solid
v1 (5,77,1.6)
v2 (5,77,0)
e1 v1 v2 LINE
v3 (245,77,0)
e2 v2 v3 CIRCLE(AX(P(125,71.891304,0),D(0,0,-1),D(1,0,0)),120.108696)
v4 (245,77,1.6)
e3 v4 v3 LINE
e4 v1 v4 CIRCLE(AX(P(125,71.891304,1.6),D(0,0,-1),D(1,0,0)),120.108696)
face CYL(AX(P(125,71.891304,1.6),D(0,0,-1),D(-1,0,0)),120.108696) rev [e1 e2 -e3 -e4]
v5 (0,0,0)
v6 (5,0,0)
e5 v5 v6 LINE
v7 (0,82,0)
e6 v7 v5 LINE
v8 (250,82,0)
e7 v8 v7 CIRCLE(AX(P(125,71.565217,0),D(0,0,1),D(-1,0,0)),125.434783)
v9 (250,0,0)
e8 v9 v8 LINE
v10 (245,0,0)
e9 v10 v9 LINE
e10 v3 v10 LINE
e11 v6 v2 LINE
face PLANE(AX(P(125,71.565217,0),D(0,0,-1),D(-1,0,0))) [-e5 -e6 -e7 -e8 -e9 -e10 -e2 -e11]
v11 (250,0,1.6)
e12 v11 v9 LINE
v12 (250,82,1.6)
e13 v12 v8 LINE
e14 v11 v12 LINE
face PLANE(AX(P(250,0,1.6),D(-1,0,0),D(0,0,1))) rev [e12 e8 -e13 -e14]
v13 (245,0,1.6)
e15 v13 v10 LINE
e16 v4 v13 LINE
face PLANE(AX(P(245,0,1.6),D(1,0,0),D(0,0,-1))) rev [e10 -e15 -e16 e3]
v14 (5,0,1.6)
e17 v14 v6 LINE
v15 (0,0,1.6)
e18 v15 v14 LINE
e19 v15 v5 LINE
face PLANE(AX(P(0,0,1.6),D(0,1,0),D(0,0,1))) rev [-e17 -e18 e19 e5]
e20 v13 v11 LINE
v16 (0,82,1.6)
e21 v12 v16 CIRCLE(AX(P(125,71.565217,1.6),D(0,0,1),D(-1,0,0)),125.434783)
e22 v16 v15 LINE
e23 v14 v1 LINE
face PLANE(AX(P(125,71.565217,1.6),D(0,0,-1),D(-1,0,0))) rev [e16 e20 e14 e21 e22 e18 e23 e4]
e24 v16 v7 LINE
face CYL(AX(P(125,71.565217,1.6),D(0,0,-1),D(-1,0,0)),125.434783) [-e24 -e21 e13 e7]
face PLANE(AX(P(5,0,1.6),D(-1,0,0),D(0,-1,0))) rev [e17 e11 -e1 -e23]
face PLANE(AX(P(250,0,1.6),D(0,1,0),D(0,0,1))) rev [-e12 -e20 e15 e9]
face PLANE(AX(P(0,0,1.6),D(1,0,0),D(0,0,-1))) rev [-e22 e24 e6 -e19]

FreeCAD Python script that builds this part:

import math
import FreeCAD as App
import Part
import Sketcher
from FreeCAD import Vector
Q = App.Units.Quantity

doc = App.newDocument("Part")
body = doc.addObject("PartDesign::Body", "Body")

# Sketch on XY plane
sketch1 = body.newObject("Sketcher::SketchObject", "Sketch")
sketch1.AttachmentSupport = (doc.getObject("XY_Plane"), [""])
sketch1.MapMode = "FlatFace"
sketch1.addGeometry([
    Part.LineSegment(Vector(5, 0, 0), Vector(5, 77, 0)),  # 0
    Part.ArcOfCircle(Part.Circle(Vector(125, 72, 0), Vector(0, 0, 1), 120), math.radians(2), math.radians(178)),  # 1
    Part.LineSegment(Vector(245, 77, 0), Vector(245, 0, 0)),  # 2
    Part.LineSegment(Vector(245, 0, 0), Vector(250, 0, 0)),  # 3
    Part.LineSegment(Vector(250, 0, 0), Vector(250, 82, 0)),  # 4
    Part.ArcOfCircle(Part.Circle(Vector(125, 72, 0), Vector(0, 0, 1), 125), math.radians(5), math.radians(175)),  # 5
    Part.LineSegment(Vector(0, 82, 0), Vector(0, 0, 0)),  # 6
    Part.LineSegment(Vector(0, 0, 0), Vector(5, 0, 0)),  # 7
], False)
sketch1.addConstraint([
    Sketcher.Constraint("Coincident", 0, 2, 1, 2),
    Sketcher.Constraint("Coincident", 1, 1, 2, 1),
    Sketcher.Constraint("Coincident", 2, 2, 3, 1),
    Sketcher.Constraint("Coincident", 3, 2, 4, 1),
    Sketcher.Constraint("Coincident", 4, 2, 5, 1),
    Sketcher.Constraint("Coincident", 5, 2, 6, 1),
    Sketcher.Constraint("Coincident", 6, 2, 7, 1),
    Sketcher.Constraint("Coincident", 7, 2, 0, 1),
    Sketcher.Constraint("Vertical", 0),
    Sketcher.Constraint("Vertical", 2),
    Sketcher.Constraint("Horizontal", 3),
    Sketcher.Constraint("Vertical", 4),
    Sketcher.Constraint("Vertical", 6),
    Sketcher.Constraint("Horizontal", 7),
    Sketcher.Constraint("Coincident", 6, 2, -1, 1),
    Sketcher.Constraint("PointOnObject", 2, 2, -1),
    Sketcher.Constraint("Horizontal", 0, 2, 1, 1),
    Sketcher.Constraint("Horizontal", 4, 2, 5, 2),
    Sketcher.Constraint("Vertical", 1, 3, 5, 3),
    Sketcher.Constraint("DistanceX", 3, 1, 3, 2, Q("5 mm")),
    Sketcher.Constraint("DistanceY", 0, 1, 0, 2, Q("77 mm")),
    Sketcher.Constraint("DistanceY", 4, 1, 4, 2, Q("82 mm")),
    Sketcher.Constraint("DistanceX", -1, 1, 1, 3, Q("125 mm")),
    Sketcher.Constraint("Radius", 1, Q("120.108696 mm")),
    Sketcher.Constraint("Radius", 5, Q("125.434783 mm")),
])
pad1 = body.newObject("PartDesign::Pad", "Pad")
pad1.Profile = sketch1
pad1.Length = 1.6

doc.recompute()
